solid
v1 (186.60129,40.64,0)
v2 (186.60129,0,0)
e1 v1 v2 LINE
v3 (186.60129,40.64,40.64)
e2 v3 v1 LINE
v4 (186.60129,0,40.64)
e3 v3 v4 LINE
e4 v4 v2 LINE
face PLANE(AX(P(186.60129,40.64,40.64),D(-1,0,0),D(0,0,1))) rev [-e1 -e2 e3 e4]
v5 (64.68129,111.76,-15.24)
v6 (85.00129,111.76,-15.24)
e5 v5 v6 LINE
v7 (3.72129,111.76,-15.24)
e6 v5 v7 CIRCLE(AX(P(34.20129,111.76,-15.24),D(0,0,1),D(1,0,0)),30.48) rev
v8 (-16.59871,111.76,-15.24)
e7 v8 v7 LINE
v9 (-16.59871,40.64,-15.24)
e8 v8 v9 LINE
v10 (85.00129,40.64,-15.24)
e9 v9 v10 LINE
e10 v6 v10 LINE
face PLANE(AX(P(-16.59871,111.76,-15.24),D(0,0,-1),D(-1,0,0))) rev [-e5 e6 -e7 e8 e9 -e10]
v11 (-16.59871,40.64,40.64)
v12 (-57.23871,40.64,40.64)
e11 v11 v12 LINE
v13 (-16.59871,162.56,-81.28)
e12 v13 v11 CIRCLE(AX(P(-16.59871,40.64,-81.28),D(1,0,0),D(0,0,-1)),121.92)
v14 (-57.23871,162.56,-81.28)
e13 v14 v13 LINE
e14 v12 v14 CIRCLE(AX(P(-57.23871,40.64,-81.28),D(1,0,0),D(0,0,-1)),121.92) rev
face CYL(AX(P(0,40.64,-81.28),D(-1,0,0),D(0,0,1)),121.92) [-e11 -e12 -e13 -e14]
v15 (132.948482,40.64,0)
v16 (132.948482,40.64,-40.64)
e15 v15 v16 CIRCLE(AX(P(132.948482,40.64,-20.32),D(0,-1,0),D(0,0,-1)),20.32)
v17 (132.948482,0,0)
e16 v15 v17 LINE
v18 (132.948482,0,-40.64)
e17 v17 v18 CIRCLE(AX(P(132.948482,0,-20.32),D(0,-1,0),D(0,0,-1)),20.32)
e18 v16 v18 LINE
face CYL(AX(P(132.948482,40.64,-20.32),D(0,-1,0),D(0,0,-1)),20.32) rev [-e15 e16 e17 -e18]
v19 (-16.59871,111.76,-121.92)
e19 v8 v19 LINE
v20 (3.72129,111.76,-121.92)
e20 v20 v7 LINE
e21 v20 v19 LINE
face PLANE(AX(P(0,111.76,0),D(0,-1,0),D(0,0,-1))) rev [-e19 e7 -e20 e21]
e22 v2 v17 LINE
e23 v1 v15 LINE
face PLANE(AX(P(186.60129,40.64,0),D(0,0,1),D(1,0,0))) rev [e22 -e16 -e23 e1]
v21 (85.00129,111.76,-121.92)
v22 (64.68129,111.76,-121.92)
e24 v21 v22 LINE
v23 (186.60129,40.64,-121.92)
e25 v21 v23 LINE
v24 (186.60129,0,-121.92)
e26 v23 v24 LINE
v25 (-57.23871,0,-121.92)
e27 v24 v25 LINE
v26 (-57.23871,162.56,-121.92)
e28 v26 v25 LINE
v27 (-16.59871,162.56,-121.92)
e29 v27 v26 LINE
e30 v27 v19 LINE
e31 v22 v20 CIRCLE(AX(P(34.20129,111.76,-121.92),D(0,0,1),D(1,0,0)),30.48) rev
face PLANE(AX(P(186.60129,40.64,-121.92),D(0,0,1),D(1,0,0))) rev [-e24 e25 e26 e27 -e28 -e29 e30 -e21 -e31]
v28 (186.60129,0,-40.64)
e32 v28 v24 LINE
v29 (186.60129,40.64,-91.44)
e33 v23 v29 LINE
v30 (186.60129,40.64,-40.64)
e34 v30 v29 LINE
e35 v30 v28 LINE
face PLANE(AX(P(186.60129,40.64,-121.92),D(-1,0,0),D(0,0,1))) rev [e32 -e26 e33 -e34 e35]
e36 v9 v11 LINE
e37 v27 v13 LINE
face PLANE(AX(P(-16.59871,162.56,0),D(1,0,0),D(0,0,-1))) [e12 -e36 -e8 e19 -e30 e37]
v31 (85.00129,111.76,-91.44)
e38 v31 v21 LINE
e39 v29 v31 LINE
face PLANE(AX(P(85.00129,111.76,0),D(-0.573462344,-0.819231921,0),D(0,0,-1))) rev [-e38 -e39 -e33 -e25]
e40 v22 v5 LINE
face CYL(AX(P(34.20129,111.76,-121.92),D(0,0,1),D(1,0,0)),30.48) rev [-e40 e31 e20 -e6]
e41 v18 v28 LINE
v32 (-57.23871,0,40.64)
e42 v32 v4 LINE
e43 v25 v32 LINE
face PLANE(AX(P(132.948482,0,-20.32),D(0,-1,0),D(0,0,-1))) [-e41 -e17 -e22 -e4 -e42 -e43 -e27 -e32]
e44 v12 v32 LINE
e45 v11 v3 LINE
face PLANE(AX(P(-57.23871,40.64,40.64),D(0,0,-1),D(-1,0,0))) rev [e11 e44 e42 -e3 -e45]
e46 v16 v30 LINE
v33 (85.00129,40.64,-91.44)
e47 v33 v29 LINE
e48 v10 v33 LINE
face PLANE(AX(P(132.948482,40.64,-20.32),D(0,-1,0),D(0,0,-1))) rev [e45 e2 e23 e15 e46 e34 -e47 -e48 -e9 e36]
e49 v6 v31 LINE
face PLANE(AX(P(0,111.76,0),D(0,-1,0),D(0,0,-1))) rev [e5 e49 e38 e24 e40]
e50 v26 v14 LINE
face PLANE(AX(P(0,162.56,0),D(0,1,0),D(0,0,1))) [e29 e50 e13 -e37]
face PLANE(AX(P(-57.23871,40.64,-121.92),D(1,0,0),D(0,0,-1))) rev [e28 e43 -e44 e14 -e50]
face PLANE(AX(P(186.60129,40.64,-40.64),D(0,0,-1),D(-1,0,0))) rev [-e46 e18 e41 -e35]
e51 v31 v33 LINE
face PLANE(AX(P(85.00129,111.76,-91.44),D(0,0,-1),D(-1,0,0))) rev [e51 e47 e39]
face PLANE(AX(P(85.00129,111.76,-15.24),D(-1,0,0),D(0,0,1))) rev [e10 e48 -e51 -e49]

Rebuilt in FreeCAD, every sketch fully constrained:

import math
import FreeCAD as App
import Part
import Sketcher
Q = App.Units.Quantity


def edges_at(feature, points):
    """Names of the edges that pass closest to the given points."""
    edges = feature.Shape.Edges
    near = lambda p: min(range(len(edges)), key=lambda i: edges[i].distToShape(Part.Vertex(*p))[0])
    return sorted({f"Edge{near(p) + 1}" for p in points})

doc = App.newDocument("Part")
body = doc.addObject("PartDesign::Body", "Body")

# Sketch on XZ plane
sketch1 = body.newObject("Sketcher::SketchObject", "Sketch")
sketch1.AttachmentSupport = (doc.getObject("XZ_Plane"), [""])
sketch1.MapMode = "FlatFace"
sketch1.addGeometry(Part.LineSegment(App.Vector(186.60129, -121.92, 0), App.Vector(-57.23871, -121.92, 0)), False)
sketch1.addGeometry(Part.LineSegment(App.Vector(-57.23871, -121.92, 0), App.Vector(-57.23871, 40.64, 0)), False)
sketch1.addGeometry(Part.LineSegment(App.Vector(-57.23871, 40.64, 0), App.Vector(186.60129, 40.64, 0)), False)
sketch1.addGeometry(Part.LineSegment(App.Vector(186.60129, 40.64, 0), App.Vector(186.60129, 0, 0)), False)
sketch1.addGeometry(Part.LineSegment(App.Vector(186.60129, 0, 0), App.Vector(132.948482, 0, 0)), False)
sketch1.addGeometry(Part.ArcOfCircle(Part.Circle(App.Vector(132.948482, -20.32, 0), App.Vector(0, 0, 1), 20.32), math.radians(90), math.radians(270)), False)
sketch1.addGeometry(Part.LineSegment(App.Vector(132.948482, -40.64, 0), App.Vector(186.60129, -40.64, 0)), False)
sketch1.addGeometry(Part.LineSegment(App.Vector(186.60129, -40.64, 0), App.Vector(186.60129, -121.92, 0)), False)
sketch1.addConstraint(Sketcher.Constraint("Coincident", 0, 2, 1, 1))
sketch1.addConstraint(Sketcher.Constraint("Coincident", 1, 2, 2, 1))
sketch1.addConstraint(Sketcher.Constraint("Coincident", 2, 2, 3, 1))
sketch1.addConstraint(Sketcher.Constraint("Coincident", 3, 2, 4, 1))
sketch1.addConstraint(Sketcher.Constraint("Tangent", 4, 2, 5, 1))
sketch1.addConstraint(Sketcher.Constraint("Tangent", 5, 2, 6, 1))
sketch1.addConstraint(Sketcher.Constraint("Coincident", 6, 2, 7, 1))
sketch1.addConstraint(Sketcher.Constraint("Coincident", 7, 2, 0, 1))
sketch1.addConstraint(Sketcher.Constraint("Horizontal", 0))
sketch1.addConstraint(Sketcher.Constraint("Vertical", 1))
sketch1.addConstraint(Sketcher.Constraint("Horizontal", 2))
sketch1.addConstraint(Sketcher.Constraint("Vertical", 3))
sketch1.addConstraint(Sketcher.Constraint("Horizontal", 4))
sketch1.addConstraint(Sketcher.Constraint("Horizontal", 6))
sketch1.addConstraint(Sketcher.Constraint("Vertical", 7))
sketch1.addConstraint(Sketcher.Constraint("Symmetric", 2, 2, 6, 2, -1))
sketch1.addConstraint(Sketcher.Constraint("PointOnObject", 3, 2, -1))
sketch1.addConstraint(Sketcher.Constraint("Radius", 5, Q("0.8 in")))
sketch1.addConstraint(Sketcher.Constraint("DistanceX", 0, 2, 0, 1, Q("9.6 in")))
sketch1.addConstraint(Sketcher.Constraint("DistanceY", 1, 1, 1, 2, Q("6.4 in")))
sketch1.addConstraint(Sketcher.Constraint("DistanceX", 4, 2, 4, 1, Q("53.652808 mm")))
sketch1.addConstraint(Sketcher.Constraint("DistanceX", -1, 1, 5, 3, Q("132.948482 mm")))
pad1 = body.newObject("PartDesign::Pad", "Pad")
pad1.Profile = sketch1
pad1.Length = Q("1.6 in")
pad1.Reversed = True

# Sketch on XZ plane
sketch2 = body.newObject("Sketcher::SketchObject", "Sketch001")
sketch2.AttachmentSupport = (doc.getObject("XZ_Plane"), [""])
sketch2.MapMode = "FlatFace"
sketch2.AttachmentOffset = App.Placement(App.Vector(0, 0, -1.6 * 25.4), App.Rotation())
sketch2.addGeometry(Part.LineSegment(App.Vector(-16.59871, -121.92, 0), App.Vector(-57.23871, -121.92, 0)), False)
sketch2.addGeometry(Part.LineSegment(App.Vector(-57.23871, -121.92, 0), App.Vector(-57.23871, 40.64, 0)), False)
sketch2.addGeometry(Part.LineSegment(App.Vector(-57.23871, 40.64, 0), App.Vector(-16.59871, 40.64, 0)), False)
sketch2.addGeometry(Part.LineSegment(App.Vector(-16.59871, 40.64, 0), App.Vector(-16.59871, -121.92, 0)), False)
sketch2.addConstraint(Sketcher.Constraint("Coincident", 0, 2, 1, 1))
sketch2.addConstraint(Sketcher.Constraint("Coincident", 1, 2, 2, 1))
sketch2.addConstraint(Sketcher.Constraint("Coincident", 2, 2, 3, 1))
sketch2.addConstraint(Sketcher.Constraint("Coincident", 3, 2, 0, 1))
sketch2.addConstraint(Sketcher.Constraint("Horizontal", 0))
sketch2.addConstraint(Sketcher.Constraint("Vertical", 1))
sketch2.addConstraint(Sketcher.Constraint("Horizontal", 2))
sketch2.addConstraint(Sketcher.Constraint("Vertical", 3))
sketch2.addConstraint(Sketcher.Constraint("DistanceX", 0, 2, 0, 1, Q("1.6 in")))
sketch2.addConstraint(Sketcher.Constraint("DistanceY", 1, 1, 1, 2, Q("6.4 in")))
sketch2.addConstraint(Sketcher.Constraint("DistanceY", 0, 2, -1, 1, Q("4.8 in")))
sketch2.addConstraint(Sketcher.Constraint("DistanceX", 0, 2, -1, 1, Q("57.23871 mm")))
pad2 = body.newObject("PartDesign::Pad", "Pad001")
pad2.Profile = sketch2
pad2.Length = Q("4.8 in")
pad2.Reversed = True

# Sketch on XZ plane
sketch3 = body.newObject("Sketcher::SketchObject", "Sketch002")
sketch3.AttachmentSupport = (doc.getObject("XZ_Plane"), [""])
sketch3.MapMode = "FlatFace"
sketch3.AttachmentOffset = App.Placement(App.Vector(0, 0, -1.6 * 25.4), App.Rotation())
sketch3.addGeometry(Part.LineSegment(App.Vector(-16.59871, -15.24, 0), App.Vector(85.00129, -15.24, 0)), False)
sketch3.addGeometry(Part.LineSegment(App.Vector(85.00129, -15.24, 0), App.Vector(85.00129, -91.44, 0)), False)
sketch3.addGeometry(Part.LineSegment(App.Vector(85.00129, -91.44, 0), App.Vector(186.60129, -91.44, 0)), False)
sketch3.addGeometry(Part.LineSegment(App.Vector(186.60129, -91.44, 0), App.Vector(186.60129, -121.92, 0)), False)
sketch3.addGeometry(Part.LineSegment(App.Vector(186.60129, -121.92, 0), App.Vector(-16.59871, -121.92, 0)), False)
sketch3.addGeometry(Part.LineSegment(App.Vector(-16.59871, -121.92, 0), App.Vector(-16.59871, -15.24, 0)), False)
sketch3.addConstraint(Sketcher.Constraint("Coincident", 0, 2, 1, 1))
sketch3.addConstraint(Sketcher.Constraint("Coincident", 1, 2, 2, 1))
sketch3.addConstraint(Sketcher.Constraint("Coincident", 2, 2, 3, 1))
sketch3.addConstraint(Sketcher.Constraint("Coincident", 3, 2, 4, 1))
sketch3.addConstraint(Sketcher.Constraint("Coincident", 4, 2, 5, 1))
sketch3.addConstraint(Sketcher.Constraint("Coincident", 5, 2, 0, 1))
sketch3.addConstraint(Sketcher.Constraint("Horizontal", 0))
sketch3.addConstraint(Sketcher.Constraint("Vertical", 1))
sketch3.addConstraint(Sketcher.Constraint("Horizontal", 2))
sketch3.addConstraint(Sketcher.Constraint("Vertical", 3))
sketch3.addConstraint(Sketcher.Constraint("Horizontal", 4))
sketch3.addConstraint(Sketcher.Constraint("Vertical", 5))
sketch3.addConstraint(Sketcher.Constraint("Equal", 0, 2))
sketch3.addConstraint(Sketcher.Constraint("DistanceX", 0, 1, 0, 2, Q("4 in")))
sketch3.addConstraint(Sketcher.Constraint("DistanceY", 1, 2, 1, 1, Q("3 in")))
sketch3.addConstraint(Sketcher.Constraint("DistanceY", 3, 2, 3, 1, Q("1.2 in")))
sketch3.addConstraint(Sketcher.Constraint("DistanceY", 0, 2, -1, 1, Q("0.6 in")))
sketch3.addConstraint(Sketcher.Constraint("DistanceX", -1, 1, 0, 2, Q("85.00129 mm")))
pad3 = body.newObject("PartDesign::Pad", "Pad002")
pad3.Profile = sketch3
pad3.Length = Q("2.8 in")
pad3.Reversed = True
doc.recompute()

chamfer = body.newObject("PartDesign::Chamfer", "Chamfer")
chamfer.Base = (pad3, edges_at(pad3, [(186.601, 111.76, -106.68)]))
chamfer.ChamferType = "Two distances"
chamfer.Size = Q("2.8 in")
chamfer.Size2 = Q("4 in")
chamfer.FlipDirection = True
doc.recompute()

fillet = body.newObject("PartDesign::Fillet", "Fillet")
fillet.Base = (chamfer, edges_at(chamfer, [(-36.919, 162.56, 40.64)]))
fillet.Radius = Q("4.8 in")

# Sketch on XY plane
sketch4 = body.newObject("Sketcher::SketchObject", "Sketch003")
sketch4.AttachmentSupport = (doc.getObject("XY_Plane"), [""])
sketch4.MapMode = "FlatFace"
sketch4.AttachmentOffset = App.Placement(App.Vector(0, 0, -0.6 * 25.4), App.Rotation())
sketch4.addGeometry(Part.LineSegment(App.Vector(64.68129, 111.76, 0), App.Vector(3.72129, 111.76, 0)), False)
sketch4.addGeometry(Part.ArcOfCircle(Part.Circle(App.Vector(34.20129, 111.76, 0), App.Vector(0, 0, 1), 30.48), math.radians(180), math.radians(360)), False)
sketch4.addConstraint(Sketcher.Constraint("Coincident", 0, 1, 1, 2))
sketch4.addConstraint(Sketcher.Constraint("Coincident", 1, 1, 0, 2))
sketch4.addConstraint(Sketcher.Constraint("Horizontal", 0))
sketch4.addConstraint(Sketcher.Constraint("Horizontal", 1, 3, 0, 1))
sketch4.addConstraint(Sketcher.Constraint("Radius", 1, Q("1.2 in")))
sketch4.addConstraint(Sketcher.Constraint("DistanceY", -1, 1, 1, 3, Q("4.4 in")))
sketch4.addConstraint(Sketcher.Constraint("DistanceX", -1, 1, 1, 3, Q("34.20129 mm")))
pocket1 = body.newObject("PartDesign::Pocket", "Pocket")
pocket1.Profile = sketch4
pocket1.Length = Q("4.2 in")

doc.recompute()
